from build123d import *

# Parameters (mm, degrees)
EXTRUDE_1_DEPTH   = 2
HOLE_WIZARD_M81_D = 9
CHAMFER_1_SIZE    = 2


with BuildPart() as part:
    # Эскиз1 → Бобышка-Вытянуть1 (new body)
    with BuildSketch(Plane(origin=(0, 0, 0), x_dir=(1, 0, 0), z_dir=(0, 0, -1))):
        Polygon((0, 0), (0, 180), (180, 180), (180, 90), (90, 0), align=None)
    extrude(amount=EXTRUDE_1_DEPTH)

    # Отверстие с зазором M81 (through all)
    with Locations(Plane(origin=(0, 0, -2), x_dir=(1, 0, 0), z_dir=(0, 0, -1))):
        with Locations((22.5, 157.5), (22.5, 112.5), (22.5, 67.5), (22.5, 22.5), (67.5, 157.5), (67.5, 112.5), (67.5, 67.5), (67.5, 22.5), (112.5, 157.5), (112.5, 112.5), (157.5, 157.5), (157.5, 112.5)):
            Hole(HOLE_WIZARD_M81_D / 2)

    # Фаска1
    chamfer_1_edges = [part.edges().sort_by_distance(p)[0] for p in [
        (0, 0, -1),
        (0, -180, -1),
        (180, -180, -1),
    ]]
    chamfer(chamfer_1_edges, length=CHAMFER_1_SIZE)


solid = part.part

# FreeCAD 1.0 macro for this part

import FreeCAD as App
import Part
import Sketcher


def edges_at(feature, points):
    """Names of the edges that pass closest to the given points."""
    edges = feature.Shape.Edges
    near = lambda p: min(range(len(edges)), key=lambda i: edges[i].distToShape(Part.Vertex(*p))[0])
    return sorted({f"Edge{near(p) + 1}" for p in points})


def add_polygon(sketch, points):
    """Adds a closed chain of lines whose ends are joined by coincident constraints."""
    first, n = sketch.GeometryCount, len(points)
    for a, b in zip(points, points[1:] + points[:1]):
        sketch.addGeometry(Part.LineSegment(App.Vector(*a, 0), App.Vector(*b, 0)), False)
    for i in range(n):
        sketch.addConstraint(Sketcher.Constraint("Coincident", first + i, 2, first + (i + 1) % n, 1))

doc = App.newDocument("Part")
body = doc.addObject("PartDesign::Body", "Body")

# Sketch on XY plane
sketch1 = body.newObject("Sketcher::SketchObject", "Sketch")
sketch1.AttachmentSupport = (doc.getObject("XY_Plane"), [""])
sketch1.MapMode = "FlatFace"
add_polygon(sketch1, [(0, -180), (0, 0), (90, 0), (180, -90), (180, -180)])  # lines 0-4
sketch1.addConstraint([
    Sketcher.Constraint("Vertical", 0),
    Sketcher.Constraint("Horizontal", 1),
    Sketcher.Constraint("Vertical", 3),
    Sketcher.Constraint("Horizontal", 4),
    Sketcher.Constraint("Coincident", 0, 2, -1, 1),
    Sketcher.Constraint("Equal", 4, 0),
    Sketcher.Constraint("Equal", 1, 3),
    Sketcher.Constraint("DistanceX", 1, 1, 1, 2, 90.0),
    Sketcher.Constraint("DistanceX", 4, 2, 4, 1, 180.0),
])
pad1 = body.newObject("PartDesign::Pad", "Pad")
pad1.Profile = sketch1
pad1.Length = 2
pad1.Reversed = True

# Sketch on XY plane
sketch2 = body.newObject("Sketcher::SketchObject", "Sketch001")
sketch2.AttachmentSupport = (doc.getObject("XY_Plane"), [""])
sketch2.MapMode = "FlatFace"
sketch2.AttachmentOffset = App.Placement(App.Vector(0, 0, -2), App.Rotation())
sketch2.addGeometry([
    Part.Circle(App.Vector(22.5, -157.5, 0), App.Vector(0, 0, 1), 4.5),  # 0
    Part.Circle(App.Vector(22.5, -112.5, 0), App.Vector(0, 0, 1), 4.5),  # 1
    Part.Circle(App.Vector(22.5, -67.5, 0), App.Vector(0, 0, 1), 4.5),  # 2
    Part.Circle(App.Vector(22.5, -22.5, 0), App.Vector(0, 0, 1), 4.5),  # 3
    Part.Circle(App.Vector(67.5, -157.5, 0), App.Vector(0, 0, 1), 4.5),  # 4
    Part.Circle(App.Vector(67.5, -112.5, 0), App.Vector(0, 0, 1), 4.5),  # 5
    Part.Circle(App.Vector(67.5, -67.5, 0), App.Vector(0, 0, 1), 4.5),  # 6
    Part.Circle(App.Vector(67.5, -22.5, 0), App.Vector(0, 0, 1), 4.5),  # 7
    Part.Circle(App.Vector(112.5, -157.5, 0), App.Vector(0, 0, 1), 4.5),  # 8
    Part.Circle(App.Vector(112.5, -112.5, 0), App.Vector(0, 0, 1), 4.5),  # 9
    Part.Circle(App.Vector(157.5, -157.5, 0), App.Vector(0, 0, 1), 4.5),  # 10
    Part.Circle(App.Vector(157.5, -112.5, 0), App.Vector(0, 0, 1), 4.5),  # 11
], False)
sketch2.addConstraint([
    Sketcher.Constraint("Equal", 0, 1),
    Sketcher.Constraint("Equal", 1, 2),
    Sketcher.Constraint("Equal", 2, 3),
    Sketcher.Constraint("Equal", 3, 4),
    Sketcher.Constraint("Equal", 4, 5),
    Sketcher.Constraint("Equal", 5, 6),
    Sketcher.Constraint("Equal", 6, 7),
    Sketcher.Constraint("Equal", 7, 8),
    Sketcher.Constraint("Equal", 8, 9),
    Sketcher.Constraint("Equal", 9, 10),
    Sketcher.Constraint("Equal", 10, 11),
    Sketcher.Constraint("Horizontal", 0, 3, 4, 3),
    Sketcher.Constraint("Horizontal", 1, 3, 5, 3),
    Sketcher.Constraint("Horizontal", 2, 3, 6, 3),
    Sketcher.Constraint("Horizontal", 3, 3, 7, 3),
    Sketcher.Constraint("Horizontal", 4, 3, 8, 3),
    Sketcher.Constraint("Horizontal", 5, 3, 9, 3),
    Sketcher.Constraint("Horizontal", 8, 3, 10, 3),
    Sketcher.Constraint("Horizontal", 9, 3, 11, 3),
    Sketcher.Constraint("Vertical", 0, 3, 1, 3),
    Sketcher.Constraint("Vertical", 1, 3, 2, 3),
    Sketcher.Constraint("Vertical", 2, 3, 3, 3),
    Sketcher.Constraint("Vertical", 4, 3, 5, 3),
    Sketcher.Constraint("Vertical", 5, 3, 6, 3),
    Sketcher.Constraint("Vertical", 6, 3, 7, 3),
    Sketcher.Constraint("Vertical", 8, 3, 9, 3),
    Sketcher.Constraint("Vertical", 10, 3, 11, 3),
    Sketcher.Constraint("Diameter", 0, 9.0),
    Sketcher.Constraint("DistanceY", 0, 3, 1, 3, 45.0),
    Sketcher.Constraint("DistanceY", 1, 3, 2, 3, 45.0),
    Sketcher.Constraint("DistanceY", 2, 3, 3, 3, 45.0),
    Sketcher.Constraint("DistanceX", 0, 3, 4, 3, 45.0),
    Sketcher.Constraint("DistanceX", 4, 3, 8, 3, 45.0),
    Sketcher.Constraint("DistanceX", 8, 3, 10, 3, 45.0),
    Sketcher.Constraint("DistanceX", -1, 1, 0, 3, 22.5),
    Sketcher.Constraint("DistanceY", 0, 3, -1, 1, 157.5),
])
doc.recompute()
hole = body.newObject("PartDesign::Hole", "Hole")
hole.Profile = sketch2
hole.ThreadType = "None"
hole.Diameter = 9
hole.DepthType = "ThroughAll"
hole.Reversed = True
doc.recompute()

chamfer = body.newObject("PartDesign::Chamfer", "Chamfer")
chamfer.Base = (hole, edges_at(hole, [(0, 0, -1), (0, -180, -1), (180, -180, -1)]))
chamfer.Size = 2

doc.recompute()
